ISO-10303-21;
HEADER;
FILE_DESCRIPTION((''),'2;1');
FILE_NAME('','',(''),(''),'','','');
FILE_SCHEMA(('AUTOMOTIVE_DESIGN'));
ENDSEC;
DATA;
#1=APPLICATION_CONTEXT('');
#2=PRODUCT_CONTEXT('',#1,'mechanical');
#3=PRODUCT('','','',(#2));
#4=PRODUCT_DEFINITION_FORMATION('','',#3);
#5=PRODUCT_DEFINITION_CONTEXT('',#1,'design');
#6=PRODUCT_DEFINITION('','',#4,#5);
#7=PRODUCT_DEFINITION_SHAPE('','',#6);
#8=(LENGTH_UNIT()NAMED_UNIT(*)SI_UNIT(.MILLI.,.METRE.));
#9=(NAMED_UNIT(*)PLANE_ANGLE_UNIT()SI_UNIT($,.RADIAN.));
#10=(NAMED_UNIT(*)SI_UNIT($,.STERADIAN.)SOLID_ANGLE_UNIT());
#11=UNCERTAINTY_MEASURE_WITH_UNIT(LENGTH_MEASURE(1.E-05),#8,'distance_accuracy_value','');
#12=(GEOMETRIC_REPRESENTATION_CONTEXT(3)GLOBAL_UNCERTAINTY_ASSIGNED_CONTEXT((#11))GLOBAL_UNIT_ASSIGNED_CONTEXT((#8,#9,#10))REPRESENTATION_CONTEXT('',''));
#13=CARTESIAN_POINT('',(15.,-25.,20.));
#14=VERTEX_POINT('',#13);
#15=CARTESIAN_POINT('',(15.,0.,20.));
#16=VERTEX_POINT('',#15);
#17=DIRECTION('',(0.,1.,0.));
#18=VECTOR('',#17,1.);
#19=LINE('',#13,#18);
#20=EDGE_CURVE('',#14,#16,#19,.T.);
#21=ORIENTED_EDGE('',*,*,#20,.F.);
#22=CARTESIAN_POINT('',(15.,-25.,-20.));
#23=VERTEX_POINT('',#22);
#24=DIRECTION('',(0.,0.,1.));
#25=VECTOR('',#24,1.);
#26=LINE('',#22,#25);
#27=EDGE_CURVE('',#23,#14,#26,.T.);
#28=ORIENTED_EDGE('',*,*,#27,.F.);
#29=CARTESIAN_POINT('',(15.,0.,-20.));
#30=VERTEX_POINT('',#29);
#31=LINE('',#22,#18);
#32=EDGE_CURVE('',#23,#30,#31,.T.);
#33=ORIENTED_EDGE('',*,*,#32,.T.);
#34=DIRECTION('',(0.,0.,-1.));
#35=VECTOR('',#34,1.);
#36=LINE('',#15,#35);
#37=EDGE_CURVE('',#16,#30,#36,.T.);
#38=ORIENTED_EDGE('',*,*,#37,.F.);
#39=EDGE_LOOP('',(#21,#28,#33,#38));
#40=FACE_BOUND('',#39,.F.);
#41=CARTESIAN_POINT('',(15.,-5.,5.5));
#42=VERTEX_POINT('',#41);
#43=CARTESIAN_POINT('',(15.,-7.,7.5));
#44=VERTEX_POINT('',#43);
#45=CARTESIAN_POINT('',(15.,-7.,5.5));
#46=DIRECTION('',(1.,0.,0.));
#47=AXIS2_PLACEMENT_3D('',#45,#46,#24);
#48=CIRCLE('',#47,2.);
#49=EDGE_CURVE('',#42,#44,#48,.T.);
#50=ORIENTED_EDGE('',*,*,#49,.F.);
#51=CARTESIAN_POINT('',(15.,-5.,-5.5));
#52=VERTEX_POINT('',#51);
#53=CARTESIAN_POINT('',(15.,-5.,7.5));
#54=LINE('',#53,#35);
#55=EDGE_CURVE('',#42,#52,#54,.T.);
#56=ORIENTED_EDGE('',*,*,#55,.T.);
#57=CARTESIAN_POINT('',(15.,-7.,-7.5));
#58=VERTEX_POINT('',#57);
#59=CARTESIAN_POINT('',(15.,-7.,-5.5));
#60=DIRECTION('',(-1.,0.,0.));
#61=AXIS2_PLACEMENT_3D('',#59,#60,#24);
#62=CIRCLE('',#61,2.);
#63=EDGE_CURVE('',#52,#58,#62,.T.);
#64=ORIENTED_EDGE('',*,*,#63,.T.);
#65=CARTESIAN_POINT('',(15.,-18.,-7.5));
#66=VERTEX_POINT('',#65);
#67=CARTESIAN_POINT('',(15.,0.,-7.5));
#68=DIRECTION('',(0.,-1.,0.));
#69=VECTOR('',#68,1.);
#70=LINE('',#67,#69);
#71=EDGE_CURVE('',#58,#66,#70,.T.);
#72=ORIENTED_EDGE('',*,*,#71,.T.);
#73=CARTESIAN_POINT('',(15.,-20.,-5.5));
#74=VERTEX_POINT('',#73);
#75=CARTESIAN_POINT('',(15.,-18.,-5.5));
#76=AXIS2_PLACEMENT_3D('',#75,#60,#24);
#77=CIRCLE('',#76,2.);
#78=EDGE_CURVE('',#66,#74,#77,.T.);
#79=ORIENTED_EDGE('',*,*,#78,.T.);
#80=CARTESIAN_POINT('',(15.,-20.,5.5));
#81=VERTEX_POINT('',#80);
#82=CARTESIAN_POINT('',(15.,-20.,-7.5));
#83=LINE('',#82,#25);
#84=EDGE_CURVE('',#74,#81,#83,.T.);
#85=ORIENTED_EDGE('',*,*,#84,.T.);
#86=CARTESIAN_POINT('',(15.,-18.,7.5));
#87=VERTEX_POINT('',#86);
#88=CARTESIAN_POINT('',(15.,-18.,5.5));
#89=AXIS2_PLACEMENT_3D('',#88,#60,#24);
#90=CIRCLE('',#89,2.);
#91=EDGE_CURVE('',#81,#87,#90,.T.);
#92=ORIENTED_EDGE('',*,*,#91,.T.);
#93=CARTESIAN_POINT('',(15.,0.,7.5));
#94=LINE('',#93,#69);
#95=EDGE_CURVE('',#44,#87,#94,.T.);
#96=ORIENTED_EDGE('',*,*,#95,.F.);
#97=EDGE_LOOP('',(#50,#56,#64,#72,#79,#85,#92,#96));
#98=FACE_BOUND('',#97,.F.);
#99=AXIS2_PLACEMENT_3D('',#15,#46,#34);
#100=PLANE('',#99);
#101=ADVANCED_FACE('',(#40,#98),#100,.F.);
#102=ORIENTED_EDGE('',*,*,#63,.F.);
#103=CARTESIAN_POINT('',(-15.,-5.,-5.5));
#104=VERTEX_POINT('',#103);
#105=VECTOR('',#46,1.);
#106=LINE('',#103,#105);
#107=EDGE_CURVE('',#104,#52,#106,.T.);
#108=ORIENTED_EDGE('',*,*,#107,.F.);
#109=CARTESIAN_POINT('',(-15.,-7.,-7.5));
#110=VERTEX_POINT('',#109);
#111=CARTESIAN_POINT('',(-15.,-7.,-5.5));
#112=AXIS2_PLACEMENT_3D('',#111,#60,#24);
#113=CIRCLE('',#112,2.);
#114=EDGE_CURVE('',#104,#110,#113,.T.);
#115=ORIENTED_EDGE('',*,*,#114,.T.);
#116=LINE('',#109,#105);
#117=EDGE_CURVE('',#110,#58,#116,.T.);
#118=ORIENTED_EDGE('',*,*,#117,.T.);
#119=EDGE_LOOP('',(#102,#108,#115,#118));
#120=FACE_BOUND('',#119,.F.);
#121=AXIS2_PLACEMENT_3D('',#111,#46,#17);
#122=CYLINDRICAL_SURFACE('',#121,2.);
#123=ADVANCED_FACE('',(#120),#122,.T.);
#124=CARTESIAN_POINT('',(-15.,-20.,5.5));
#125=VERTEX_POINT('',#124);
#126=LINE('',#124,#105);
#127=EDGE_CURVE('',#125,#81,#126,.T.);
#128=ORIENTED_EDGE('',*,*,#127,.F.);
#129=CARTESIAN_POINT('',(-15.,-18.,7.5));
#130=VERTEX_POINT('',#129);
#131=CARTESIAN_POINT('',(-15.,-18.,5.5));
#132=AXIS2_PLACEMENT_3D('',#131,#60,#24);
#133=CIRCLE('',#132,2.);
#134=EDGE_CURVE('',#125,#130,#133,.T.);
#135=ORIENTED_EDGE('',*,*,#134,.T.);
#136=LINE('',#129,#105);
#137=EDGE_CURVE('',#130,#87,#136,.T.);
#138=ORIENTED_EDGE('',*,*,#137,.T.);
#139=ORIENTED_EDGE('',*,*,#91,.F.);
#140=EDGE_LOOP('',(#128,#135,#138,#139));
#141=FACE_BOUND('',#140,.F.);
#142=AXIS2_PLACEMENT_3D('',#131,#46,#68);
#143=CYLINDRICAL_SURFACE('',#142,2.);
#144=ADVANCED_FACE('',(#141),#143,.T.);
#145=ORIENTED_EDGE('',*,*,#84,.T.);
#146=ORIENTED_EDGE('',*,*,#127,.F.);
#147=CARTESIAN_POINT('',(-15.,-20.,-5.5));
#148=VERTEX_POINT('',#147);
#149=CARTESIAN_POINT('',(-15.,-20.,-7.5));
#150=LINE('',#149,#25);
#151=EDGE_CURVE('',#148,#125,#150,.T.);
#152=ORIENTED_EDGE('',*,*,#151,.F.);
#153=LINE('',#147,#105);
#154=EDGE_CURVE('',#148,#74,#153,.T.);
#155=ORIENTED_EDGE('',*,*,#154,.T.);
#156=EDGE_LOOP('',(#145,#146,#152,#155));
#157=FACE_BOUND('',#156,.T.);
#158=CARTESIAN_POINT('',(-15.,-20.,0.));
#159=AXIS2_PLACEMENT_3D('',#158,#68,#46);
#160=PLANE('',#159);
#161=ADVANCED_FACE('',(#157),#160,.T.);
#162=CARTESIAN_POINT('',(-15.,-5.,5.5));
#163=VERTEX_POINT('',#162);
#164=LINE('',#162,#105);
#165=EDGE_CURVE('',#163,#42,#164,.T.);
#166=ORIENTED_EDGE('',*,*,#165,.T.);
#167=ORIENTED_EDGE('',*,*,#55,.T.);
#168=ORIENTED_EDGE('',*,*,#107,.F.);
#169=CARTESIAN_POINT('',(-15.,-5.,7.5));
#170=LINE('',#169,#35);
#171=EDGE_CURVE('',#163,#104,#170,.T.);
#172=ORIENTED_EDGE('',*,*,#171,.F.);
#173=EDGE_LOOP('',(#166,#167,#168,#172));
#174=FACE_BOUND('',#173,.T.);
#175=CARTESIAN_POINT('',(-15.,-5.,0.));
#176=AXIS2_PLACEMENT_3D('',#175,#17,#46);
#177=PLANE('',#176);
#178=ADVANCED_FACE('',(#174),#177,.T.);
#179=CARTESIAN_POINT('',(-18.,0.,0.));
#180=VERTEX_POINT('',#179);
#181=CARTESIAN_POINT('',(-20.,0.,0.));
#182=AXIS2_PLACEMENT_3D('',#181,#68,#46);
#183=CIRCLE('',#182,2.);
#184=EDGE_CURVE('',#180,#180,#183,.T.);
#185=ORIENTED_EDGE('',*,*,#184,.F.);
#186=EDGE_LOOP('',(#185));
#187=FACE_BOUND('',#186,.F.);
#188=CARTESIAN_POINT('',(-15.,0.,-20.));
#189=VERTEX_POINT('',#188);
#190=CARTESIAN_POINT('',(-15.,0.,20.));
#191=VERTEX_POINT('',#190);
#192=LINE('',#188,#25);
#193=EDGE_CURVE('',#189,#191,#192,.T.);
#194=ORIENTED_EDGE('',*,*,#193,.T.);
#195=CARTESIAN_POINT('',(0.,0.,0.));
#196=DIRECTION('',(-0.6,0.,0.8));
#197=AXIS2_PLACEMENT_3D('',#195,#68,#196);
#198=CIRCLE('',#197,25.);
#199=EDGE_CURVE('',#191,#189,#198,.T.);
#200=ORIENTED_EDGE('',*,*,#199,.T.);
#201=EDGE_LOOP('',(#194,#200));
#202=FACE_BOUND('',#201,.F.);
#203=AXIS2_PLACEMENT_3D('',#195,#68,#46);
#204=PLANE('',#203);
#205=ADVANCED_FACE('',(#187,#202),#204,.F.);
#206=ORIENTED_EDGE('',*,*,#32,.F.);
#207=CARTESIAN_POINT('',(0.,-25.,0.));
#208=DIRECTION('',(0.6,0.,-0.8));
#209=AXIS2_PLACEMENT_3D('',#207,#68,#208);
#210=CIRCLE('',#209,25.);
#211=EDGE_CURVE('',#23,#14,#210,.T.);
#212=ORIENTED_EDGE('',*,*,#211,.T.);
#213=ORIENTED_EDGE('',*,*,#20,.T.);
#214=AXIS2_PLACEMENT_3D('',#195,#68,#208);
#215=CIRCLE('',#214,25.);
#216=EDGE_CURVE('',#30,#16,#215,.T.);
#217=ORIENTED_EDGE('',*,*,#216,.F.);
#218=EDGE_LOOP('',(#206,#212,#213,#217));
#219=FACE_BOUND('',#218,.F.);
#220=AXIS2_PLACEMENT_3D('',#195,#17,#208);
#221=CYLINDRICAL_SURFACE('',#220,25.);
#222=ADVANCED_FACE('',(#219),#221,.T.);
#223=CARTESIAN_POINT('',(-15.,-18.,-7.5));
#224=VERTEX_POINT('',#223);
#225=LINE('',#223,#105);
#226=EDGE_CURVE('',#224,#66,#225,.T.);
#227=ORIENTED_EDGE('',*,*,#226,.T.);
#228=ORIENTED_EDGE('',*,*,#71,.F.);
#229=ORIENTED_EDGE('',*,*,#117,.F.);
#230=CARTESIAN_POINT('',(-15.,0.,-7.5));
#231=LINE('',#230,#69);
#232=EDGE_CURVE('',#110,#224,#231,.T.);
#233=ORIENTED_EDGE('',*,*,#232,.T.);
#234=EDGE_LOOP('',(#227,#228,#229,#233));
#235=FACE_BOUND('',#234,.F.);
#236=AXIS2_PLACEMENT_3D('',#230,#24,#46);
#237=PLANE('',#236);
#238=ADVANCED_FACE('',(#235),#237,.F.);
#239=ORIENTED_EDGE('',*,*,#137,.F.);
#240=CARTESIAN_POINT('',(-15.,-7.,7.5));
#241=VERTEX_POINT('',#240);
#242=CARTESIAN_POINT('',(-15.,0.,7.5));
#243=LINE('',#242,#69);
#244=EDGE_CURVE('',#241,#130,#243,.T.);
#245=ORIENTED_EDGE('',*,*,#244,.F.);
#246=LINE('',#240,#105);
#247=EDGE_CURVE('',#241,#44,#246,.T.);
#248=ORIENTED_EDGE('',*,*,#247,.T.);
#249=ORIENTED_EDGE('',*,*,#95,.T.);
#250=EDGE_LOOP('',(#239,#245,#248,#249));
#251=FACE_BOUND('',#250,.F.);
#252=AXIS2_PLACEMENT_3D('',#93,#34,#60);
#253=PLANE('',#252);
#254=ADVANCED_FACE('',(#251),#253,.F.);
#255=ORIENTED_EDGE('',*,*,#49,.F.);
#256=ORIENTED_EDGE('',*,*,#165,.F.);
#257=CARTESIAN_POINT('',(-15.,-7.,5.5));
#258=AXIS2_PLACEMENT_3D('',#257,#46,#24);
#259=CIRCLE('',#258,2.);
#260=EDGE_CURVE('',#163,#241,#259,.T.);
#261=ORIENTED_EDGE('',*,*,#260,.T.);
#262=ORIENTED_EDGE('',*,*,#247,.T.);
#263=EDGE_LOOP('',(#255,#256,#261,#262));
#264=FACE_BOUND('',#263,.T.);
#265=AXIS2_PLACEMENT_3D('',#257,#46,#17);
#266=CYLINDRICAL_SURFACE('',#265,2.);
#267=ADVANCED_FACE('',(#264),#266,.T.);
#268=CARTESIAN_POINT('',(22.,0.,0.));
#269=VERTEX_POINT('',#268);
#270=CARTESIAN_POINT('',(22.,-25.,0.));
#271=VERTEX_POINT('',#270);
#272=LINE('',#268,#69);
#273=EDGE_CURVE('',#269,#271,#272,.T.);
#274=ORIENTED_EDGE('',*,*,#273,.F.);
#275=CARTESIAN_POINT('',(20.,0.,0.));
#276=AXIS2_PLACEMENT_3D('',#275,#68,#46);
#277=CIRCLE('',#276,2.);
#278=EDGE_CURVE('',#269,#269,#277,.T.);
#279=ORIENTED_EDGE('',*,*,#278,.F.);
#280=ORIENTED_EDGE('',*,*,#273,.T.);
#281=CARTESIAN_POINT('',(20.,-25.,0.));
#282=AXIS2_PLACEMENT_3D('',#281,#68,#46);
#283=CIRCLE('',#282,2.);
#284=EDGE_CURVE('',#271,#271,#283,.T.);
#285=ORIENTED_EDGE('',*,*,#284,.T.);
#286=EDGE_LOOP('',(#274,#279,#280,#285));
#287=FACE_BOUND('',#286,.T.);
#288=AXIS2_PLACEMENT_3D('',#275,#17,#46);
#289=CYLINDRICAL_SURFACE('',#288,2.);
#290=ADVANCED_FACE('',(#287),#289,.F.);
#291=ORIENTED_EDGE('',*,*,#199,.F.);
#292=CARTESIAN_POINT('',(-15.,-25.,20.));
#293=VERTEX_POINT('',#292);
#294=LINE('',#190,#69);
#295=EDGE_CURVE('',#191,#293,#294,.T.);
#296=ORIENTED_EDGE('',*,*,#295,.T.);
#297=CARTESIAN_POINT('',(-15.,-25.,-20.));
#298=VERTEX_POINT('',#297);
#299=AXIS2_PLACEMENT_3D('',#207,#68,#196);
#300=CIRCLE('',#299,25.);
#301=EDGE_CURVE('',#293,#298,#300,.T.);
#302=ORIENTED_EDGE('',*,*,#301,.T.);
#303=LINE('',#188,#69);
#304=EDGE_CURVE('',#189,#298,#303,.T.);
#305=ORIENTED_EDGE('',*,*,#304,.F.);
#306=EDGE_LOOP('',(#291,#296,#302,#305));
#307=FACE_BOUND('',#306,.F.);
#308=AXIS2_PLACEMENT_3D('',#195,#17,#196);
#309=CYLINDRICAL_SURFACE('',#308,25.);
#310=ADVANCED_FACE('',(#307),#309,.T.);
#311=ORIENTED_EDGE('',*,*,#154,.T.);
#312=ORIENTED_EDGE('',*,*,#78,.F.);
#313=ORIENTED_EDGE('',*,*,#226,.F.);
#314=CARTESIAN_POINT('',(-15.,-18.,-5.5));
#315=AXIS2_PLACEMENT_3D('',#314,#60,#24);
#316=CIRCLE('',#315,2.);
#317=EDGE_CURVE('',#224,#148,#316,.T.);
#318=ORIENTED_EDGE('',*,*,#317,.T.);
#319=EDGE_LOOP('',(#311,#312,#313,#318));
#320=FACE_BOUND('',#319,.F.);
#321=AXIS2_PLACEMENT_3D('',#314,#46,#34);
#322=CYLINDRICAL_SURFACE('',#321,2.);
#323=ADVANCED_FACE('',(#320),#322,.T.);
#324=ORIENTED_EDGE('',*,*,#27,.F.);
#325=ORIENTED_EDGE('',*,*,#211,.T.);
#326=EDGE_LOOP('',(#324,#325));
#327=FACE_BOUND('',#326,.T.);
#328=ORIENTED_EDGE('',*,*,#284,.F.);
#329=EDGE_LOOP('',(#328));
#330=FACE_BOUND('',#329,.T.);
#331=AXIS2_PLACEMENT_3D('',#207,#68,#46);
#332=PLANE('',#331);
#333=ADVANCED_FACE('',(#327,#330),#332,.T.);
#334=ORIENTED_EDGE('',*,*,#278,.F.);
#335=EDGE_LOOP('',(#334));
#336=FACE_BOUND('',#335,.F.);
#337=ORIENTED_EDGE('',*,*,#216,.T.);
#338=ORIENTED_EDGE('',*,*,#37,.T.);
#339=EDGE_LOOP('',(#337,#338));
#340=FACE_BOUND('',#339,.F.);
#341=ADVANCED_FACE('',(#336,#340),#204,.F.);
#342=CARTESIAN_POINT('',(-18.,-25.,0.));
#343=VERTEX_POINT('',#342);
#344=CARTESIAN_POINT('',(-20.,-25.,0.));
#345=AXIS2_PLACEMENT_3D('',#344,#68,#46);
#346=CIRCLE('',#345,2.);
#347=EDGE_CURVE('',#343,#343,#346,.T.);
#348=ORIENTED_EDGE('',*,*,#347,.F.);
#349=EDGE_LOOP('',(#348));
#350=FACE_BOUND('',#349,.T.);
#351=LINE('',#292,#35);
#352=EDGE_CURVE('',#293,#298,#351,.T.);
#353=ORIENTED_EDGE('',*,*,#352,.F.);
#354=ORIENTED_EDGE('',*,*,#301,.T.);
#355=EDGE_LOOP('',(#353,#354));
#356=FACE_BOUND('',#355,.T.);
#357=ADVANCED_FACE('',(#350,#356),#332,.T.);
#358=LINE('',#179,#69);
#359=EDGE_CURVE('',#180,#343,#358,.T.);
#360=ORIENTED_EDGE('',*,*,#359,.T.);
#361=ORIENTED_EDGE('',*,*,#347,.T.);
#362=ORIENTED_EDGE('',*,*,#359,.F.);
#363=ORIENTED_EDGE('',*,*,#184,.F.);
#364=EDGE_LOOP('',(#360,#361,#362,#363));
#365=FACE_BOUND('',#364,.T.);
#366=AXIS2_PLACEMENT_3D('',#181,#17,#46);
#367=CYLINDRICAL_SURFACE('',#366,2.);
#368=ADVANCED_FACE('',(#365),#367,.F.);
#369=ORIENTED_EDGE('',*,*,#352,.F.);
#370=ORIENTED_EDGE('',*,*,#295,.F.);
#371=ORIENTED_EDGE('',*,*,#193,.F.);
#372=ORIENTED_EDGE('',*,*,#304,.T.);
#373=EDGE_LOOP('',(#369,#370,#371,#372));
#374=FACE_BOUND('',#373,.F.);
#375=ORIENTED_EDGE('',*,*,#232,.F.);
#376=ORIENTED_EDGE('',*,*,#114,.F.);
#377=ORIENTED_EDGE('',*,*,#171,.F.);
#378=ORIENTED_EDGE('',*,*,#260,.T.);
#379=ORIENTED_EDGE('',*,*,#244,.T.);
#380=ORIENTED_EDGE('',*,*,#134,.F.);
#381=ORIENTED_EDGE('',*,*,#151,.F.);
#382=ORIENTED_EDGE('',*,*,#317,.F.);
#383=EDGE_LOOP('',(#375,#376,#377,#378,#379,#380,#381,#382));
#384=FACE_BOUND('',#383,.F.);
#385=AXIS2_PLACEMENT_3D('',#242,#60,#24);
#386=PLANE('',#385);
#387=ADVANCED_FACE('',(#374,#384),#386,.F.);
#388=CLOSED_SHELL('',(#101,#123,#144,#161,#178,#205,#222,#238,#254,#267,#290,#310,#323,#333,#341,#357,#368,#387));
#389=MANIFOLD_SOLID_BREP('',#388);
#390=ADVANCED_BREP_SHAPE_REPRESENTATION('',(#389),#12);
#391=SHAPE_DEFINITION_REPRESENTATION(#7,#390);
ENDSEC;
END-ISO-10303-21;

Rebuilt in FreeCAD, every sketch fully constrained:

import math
import FreeCAD as App
import Part
import Sketcher


def edges_at(feature, points):
    """Names of the edges that pass closest to the given points."""
    edges = feature.Shape.Edges
    near = lambda p: min(range(len(edges)), key=lambda i: edges[i].distToShape(Part.Vertex(*p))[0])
    return sorted({f"Edge{near(p) + 1}" for p in points})

doc = App.newDocument("Part")
params = doc.addObject("Spreadsheet::Sheet", "Params")
for row, (alias, value) in enumerate([
    ("sketch1_diameter", "4 mm"),
    ("sketch1_radius", "25 mm"),
    ("sketch1_width", "30 mm"),
    ("sketch1_height", "12.5 mm"),
    ("pad1_length", "25 mm"),
    ("sketch2_width", "30 mm"),
    ("fillet_radius", "2 mm"),
], start=1):
    params.set(f"A{row}", alias)
    params.set(f"B{row}", "=" + value)
    params.setAlias(f"B{row}", alias)

body = doc.addObject("PartDesign::Body", "Body")

# Sketch on XZ plane
sketch1 = body.newObject("Sketcher::SketchObject", "Sketch")
sketch1.AttachmentSupport = (doc.getObject("XZ_Plane"), [""])
sketch1.MapMode = "FlatFace"
sketch1.addGeometry([
    Part.LineSegment(App.Vector(-15, 7.5, 0), App.Vector(-15, 20, 0)),  # 0
    Part.ArcOfCircle(Part.Circle(App.Vector(0, 0, 0), App.Vector(0, 0, 1), 25), math.radians(127), math.radians(233)),  # 1
    Part.LineSegment(App.Vector(-15, -20, 0), App.Vector(-15, -7.5, 0)),  # 2
    Part.LineSegment(App.Vector(-15, -7.5, 0), App.Vector(15, -7.5, 0)),  # 3
    Part.LineSegment(App.Vector(15, -7.5, 0), App.Vector(15, -20, 0)),  # 4
    Part.ArcOfCircle(Part.Circle(App.Vector(0, 0, 0), App.Vector(0, 0, 1), 25), math.radians(-53), math.radians(53)),  # 5
    Part.LineSegment(App.Vector(15, 20, 0), App.Vector(15, 7.5, 0)),  # 6
    Part.LineSegment(App.Vector(15, 7.5, 0), App.Vector(-15, 7.5, 0)),  # 7
    Part.Circle(App.Vector(-20, 0, 0), App.Vector(0, 0, 1), 2),  # 8
    Part.Circle(App.Vector(20, 0, 0), App.Vector(0, 0, 1), 2),  # 9
], False)
sketch1.addConstraint([
    Sketcher.Constraint("Coincident", 0, 2, 1, 1),
    Sketcher.Constraint("Coincident", 1, 2, 2, 1),
    Sketcher.Constraint("Coincident", 2, 2, 3, 1),
    Sketcher.Constraint("Coincident", 3, 2, 4, 1),
    Sketcher.Constraint("Coincident", 4, 2, 5, 1),
    Sketcher.Constraint("Coincident", 5, 2, 6, 1),
    Sketcher.Constraint("Coincident", 6, 2, 7, 1),
    Sketcher.Constraint("Coincident", 7, 2, 0, 1),
    Sketcher.Constraint("Vertical", 0),
    Sketcher.Constraint("Vertical", 2),
    Sketcher.Constraint("Horizontal", 3),
    Sketcher.Constraint("Vertical", 4),
    Sketcher.Constraint("Vertical", 6),
    Sketcher.Constraint("Horizontal", 7),
    Sketcher.Constraint("Coincident", 1, 3, -1, 1),
    Sketcher.Constraint("Coincident", 5, 3, -1, 1),
    Sketcher.Constraint("Equal", 1, 5),
    Sketcher.Constraint("Equal", 8, 9),
    Sketcher.Constraint("Symmetric", 8, 3, 9, 3, -1, 1),
    Sketcher.Constraint("Symmetric", 2, 2, 6, 2, -1, 1),
    Sketcher.Constraint("PointOnObject", 8, 3, -1),
    Sketcher.Constraint("Horizontal", 1, 2, 4, 2),
    Sketcher.Constraint("Horizontal", 0, 2, 5, 2),
    Sketcher.Constraint("Diameter", 8, 4.0),
    Sketcher.Constraint("Radius", 1, 25.0),
    Sketcher.Constraint("DistanceX", 3, 1, 3, 2, 30.0),
    Sketcher.Constraint("DistanceY", 0, 1, 0, 2, 12.5),
    Sketcher.Constraint("DistanceX", 8, 3, -1, 1, 20.0),
])
sketch1.setExpression("Constraints[23]", "Params.sketch1_diameter")
sketch1.setExpression("Constraints[24]", "Params.sketch1_radius")
sketch1.setExpression("Constraints[25]", "Params.sketch1_width")
sketch1.setExpression("Constraints[26]", "Params.sketch1_height")
pad1 = body.newObject("PartDesign::Pad", "Pad")
pad1.Profile = sketch1
pad1.setExpression("Length", "Params.pad1_length")

# Sketch on XY plane
sketch2 = body.newObject("Sketcher::SketchObject", "Sketch001")
sketch2.AttachmentSupport = (doc.getObject("XY_Plane"), [""])
sketch2.MapMode = "FlatFace"
sketch2.addGeometry([
    Part.LineSegment(App.Vector(-15, 7, 0), App.Vector(-15, -5, 0)),  # 0
    Part.LineSegment(App.Vector(-15, -5, 0), App.Vector(15, -5, 0)),  # 1
    Part.LineSegment(App.Vector(15, -5, 0), App.Vector(15, 7, 0)),  # 2
    Part.LineSegment(App.Vector(15, 7, 0), App.Vector(-15, 7, 0)),  # 3
    Part.LineSegment(App.Vector(-15, -20, 0), App.Vector(-15, -32, 0)),  # 4
    Part.LineSegment(App.Vector(-15, -32, 0), App.Vector(15, -32, 0)),  # 5
    Part.LineSegment(App.Vector(15, -32, 0), App.Vector(15, -20, 0)),  # 6
    Part.LineSegment(App.Vector(15, -20, 0), App.Vector(-15, -20, 0)),  # 7
], False)
sketch2.addConstraint([
    Sketcher.Constraint("Coincident", 0, 2, 1, 1),
    Sketcher.Constraint("Coincident", 1, 2, 2, 1),
    Sketcher.Constraint("Coincident", 2, 2, 3, 1),
    Sketcher.Constraint("Coincident", 3, 2, 0, 1),
    Sketcher.Constraint("Coincident", 4, 2, 5, 1),
    Sketcher.Constraint("Coincident", 5, 2, 6, 1),
    Sketcher.Constraint("Coincident", 6, 2, 7, 1),
    Sketcher.Constraint("Coincident", 7, 2, 4, 1),
    Sketcher.Constraint("Vertical", 0),
    Sketcher.Constraint("Horizontal", 1),
    Sketcher.Constraint("Vertical", 2),
    Sketcher.Constraint("Horizontal", 3),
    Sketcher.Constraint("Vertical", 4),
    Sketcher.Constraint("Horizontal", 5),
    Sketcher.Constraint("Vertical", 6),
    Sketcher.Constraint("Horizontal", 7),
    Sketcher.Constraint("Vertical", 3, 2, 4, 2),
    Sketcher.Constraint("Vertical", 2, 2, 5, 2),
    Sketcher.Constraint("Equal", 2, 4),
    Sketcher.Constraint("DistanceX", 1, 1, 1, 2, 30.0),
    Sketcher.Constraint("DistanceX", 0, 2, -1, 1, 15.0),
    Sketcher.Constraint("DistanceY", 0, 2, -1, 1, 5.0),
    Sketcher.Constraint("DistanceY", 6, 2, -1, 1, 20.0),
    Sketcher.Constraint("DistanceY", 0, 2, 0, 1, 12.480911),
])
sketch2.setExpression("Constraints[19]", "Params.sketch2_width")
pocket1 = body.newObject("PartDesign::Pocket", "Pocket")
pocket1.Profile = sketch2
pocket1.Type = "ThroughAll"
pocket1.Midplane = True
doc.recompute()

fillet = body.newObject("PartDesign::Fillet", "Fillet")
fillet.Base = (pocket1, edges_at(pocket1, [
    (0, -20, 7.5),
    (0, -20, -7.5),
    (0, -5, -7.5),
    (0, -5, 7.5),
]))
fillet.setExpression("Radius", "Params.fillet_radius")

doc.recompute()
